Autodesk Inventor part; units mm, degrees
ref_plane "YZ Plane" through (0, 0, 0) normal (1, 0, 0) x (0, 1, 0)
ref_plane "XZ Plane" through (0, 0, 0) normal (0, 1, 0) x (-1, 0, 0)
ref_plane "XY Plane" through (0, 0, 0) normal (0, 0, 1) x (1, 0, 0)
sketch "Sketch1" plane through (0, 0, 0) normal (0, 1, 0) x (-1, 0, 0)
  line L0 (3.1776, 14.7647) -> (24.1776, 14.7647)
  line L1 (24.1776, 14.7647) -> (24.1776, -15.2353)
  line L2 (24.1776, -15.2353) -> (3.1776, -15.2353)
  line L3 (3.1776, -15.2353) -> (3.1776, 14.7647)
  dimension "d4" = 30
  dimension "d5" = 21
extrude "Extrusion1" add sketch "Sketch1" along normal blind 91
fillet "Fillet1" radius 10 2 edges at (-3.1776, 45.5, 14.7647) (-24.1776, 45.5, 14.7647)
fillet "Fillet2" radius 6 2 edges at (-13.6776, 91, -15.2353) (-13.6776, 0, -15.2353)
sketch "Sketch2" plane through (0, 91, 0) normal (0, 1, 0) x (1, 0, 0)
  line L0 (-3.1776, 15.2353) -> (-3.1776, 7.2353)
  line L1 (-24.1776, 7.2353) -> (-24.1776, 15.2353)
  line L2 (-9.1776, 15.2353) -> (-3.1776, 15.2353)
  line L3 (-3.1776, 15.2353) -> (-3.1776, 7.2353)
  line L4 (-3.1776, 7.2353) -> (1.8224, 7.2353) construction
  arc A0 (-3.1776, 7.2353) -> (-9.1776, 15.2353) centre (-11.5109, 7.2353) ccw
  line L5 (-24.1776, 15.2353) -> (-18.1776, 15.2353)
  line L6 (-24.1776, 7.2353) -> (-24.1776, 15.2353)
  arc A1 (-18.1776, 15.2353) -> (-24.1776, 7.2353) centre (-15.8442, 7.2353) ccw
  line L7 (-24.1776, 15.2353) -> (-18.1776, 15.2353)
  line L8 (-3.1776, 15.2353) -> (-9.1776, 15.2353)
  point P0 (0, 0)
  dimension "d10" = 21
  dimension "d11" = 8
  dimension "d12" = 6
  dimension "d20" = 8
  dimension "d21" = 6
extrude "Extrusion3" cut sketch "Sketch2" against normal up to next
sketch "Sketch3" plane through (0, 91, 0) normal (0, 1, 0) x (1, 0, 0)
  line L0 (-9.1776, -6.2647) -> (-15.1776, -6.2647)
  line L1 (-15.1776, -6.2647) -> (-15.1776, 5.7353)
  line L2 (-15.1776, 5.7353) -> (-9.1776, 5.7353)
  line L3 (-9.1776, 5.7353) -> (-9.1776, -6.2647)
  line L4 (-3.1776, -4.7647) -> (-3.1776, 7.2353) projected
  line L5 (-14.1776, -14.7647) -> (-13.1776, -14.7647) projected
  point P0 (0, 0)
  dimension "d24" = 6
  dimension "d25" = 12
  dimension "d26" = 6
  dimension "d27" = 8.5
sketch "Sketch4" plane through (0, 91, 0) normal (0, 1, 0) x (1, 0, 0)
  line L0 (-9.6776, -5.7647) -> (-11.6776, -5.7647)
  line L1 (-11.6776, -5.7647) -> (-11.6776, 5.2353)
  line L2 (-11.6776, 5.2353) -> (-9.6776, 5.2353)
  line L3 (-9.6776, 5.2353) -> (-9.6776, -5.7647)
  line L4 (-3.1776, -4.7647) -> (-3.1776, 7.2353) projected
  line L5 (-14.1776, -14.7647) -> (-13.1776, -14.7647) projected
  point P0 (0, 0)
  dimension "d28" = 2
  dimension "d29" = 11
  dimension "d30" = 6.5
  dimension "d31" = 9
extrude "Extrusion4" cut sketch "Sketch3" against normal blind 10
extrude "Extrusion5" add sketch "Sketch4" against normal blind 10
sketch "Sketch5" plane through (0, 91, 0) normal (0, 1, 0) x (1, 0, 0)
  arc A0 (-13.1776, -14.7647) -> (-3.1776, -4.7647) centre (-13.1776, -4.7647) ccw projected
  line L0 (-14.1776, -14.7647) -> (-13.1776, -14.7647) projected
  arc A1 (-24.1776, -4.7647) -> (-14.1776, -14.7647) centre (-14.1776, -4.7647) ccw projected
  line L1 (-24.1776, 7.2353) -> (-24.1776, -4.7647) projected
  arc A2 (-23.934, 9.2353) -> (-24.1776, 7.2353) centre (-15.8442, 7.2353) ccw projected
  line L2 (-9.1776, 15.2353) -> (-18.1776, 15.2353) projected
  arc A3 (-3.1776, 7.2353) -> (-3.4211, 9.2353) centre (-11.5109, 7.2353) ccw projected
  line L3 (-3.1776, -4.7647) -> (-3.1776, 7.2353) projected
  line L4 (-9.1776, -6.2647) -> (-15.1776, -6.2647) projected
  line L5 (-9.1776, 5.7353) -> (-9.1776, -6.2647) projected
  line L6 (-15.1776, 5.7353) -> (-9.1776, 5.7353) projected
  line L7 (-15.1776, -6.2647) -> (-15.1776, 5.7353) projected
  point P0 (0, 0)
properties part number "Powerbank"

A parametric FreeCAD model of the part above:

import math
import FreeCAD as App
import Part
import Sketcher


def edges_at(feature, points):
    """Names of the edges that pass closest to the given points."""
    edges = feature.Shape.Edges
    near = lambda p: min(range(len(edges)), key=lambda i: edges[i].distToShape(Part.Vertex(*p))[0])
    return sorted({f"Edge{near(p) + 1}" for p in points})


def add_polygon(sketch, points):
    """Adds a closed chain of lines whose ends are joined by coincident constraints."""
    first, n = sketch.GeometryCount, len(points)
    for a, b in zip(points, points[1:] + points[:1]):
        sketch.addGeometry(Part.LineSegment(App.Vector(*a, 0), App.Vector(*b, 0)), False)
    for i in range(n):
        sketch.addConstraint(Sketcher.Constraint("Coincident", first + i, 2, first + (i + 1) % n, 1))

doc = App.newDocument("Part")
body = doc.addObject("PartDesign::Body", "Body")

# Sketch on XZ plane
sketch1 = doc.addObject("Sketcher::SketchObject", "Sketch")
body.addObject(sketch1)
sketch1.AttachmentSupport = (doc.XZ_Plane, [""])
sketch1.MapMode = "FlatFace"
add_polygon(sketch1, [(-24, 15), (-3, 15), (-3, -15), (-24, -15)])  # lines 0-3
sketch1.addConstraint([
    Sketcher.Constraint("Horizontal", 0),
    Sketcher.Constraint("Vertical", 1),
    Sketcher.Constraint("Horizontal", 2),
    Sketcher.Constraint("Vertical", 3),
    Sketcher.Constraint("DistanceX", 0, 1, 0, 2, 21.0),
    Sketcher.Constraint("DistanceY", 1, 2, 1, 1, 30.0),
    Sketcher.Constraint("DistanceX", 0, 2, -1, 1, 3.1776),
    Sketcher.Constraint("DistanceY", -1, 1, 0, 2, 14.7647),
])
pad1 = doc.addObject("PartDesign::Pad", "Pad")
body.addObject(pad1)
pad1.Profile = sketch1
pad1.Length = 91
pad1.Reversed = True
doc.recompute()

fillet = doc.addObject("PartDesign::Fillet", "Fillet")
body.addObject(fillet)
fillet.Base = (pad1, edges_at(pad1, [(-3.178, 45.5, 14.765), (-24.178, 45.5, 14.765)]))
fillet.Radius = 10
doc.recompute()

fillet2 = doc.addObject("PartDesign::Fillet", "Fillet001")
body.addObject(fillet2)
fillet2.Base = (fillet, edges_at(fillet, [(-13.678, 91, -15.235), (-13.678, 0, -15.235)]))
fillet2.Radius = 6

# Sketch on XZ plane
sketch2 = doc.addObject("Sketcher::SketchObject", "Sketch001")
body.addObject(sketch2)
sketch2.AttachmentSupport = (doc.XZ_Plane, [""])
sketch2.MapMode = "FlatFace"
sketch2.AttachmentOffset = App.Placement(App.Vector(0, 0, -91), App.Rotation())
sketch2.addGeometry([
    Part.LineSegment(App.Vector(-3, -7, 0), App.Vector(-3, -15, 0)),  # 0
    Part.LineSegment(App.Vector(-3, -15, 0), App.Vector(-9, -15, 0)),  # 1
    Part.ArcOfCircle(Part.Circle(App.Vector(-12, -7, 0), App.Vector(0, 0, 1), 8), math.radians(-74), math.radians(0)),  # 2
    Part.LineSegment(App.Vector(-24, -15, 0), App.Vector(-24, -7, 0)),  # 3
    Part.ArcOfCircle(Part.Circle(App.Vector(-16, -7, 0), App.Vector(0, 0, 1), 8), math.radians(180), math.radians(254)),  # 4
    Part.LineSegment(App.Vector(-18, -15, 0), App.Vector(-24, -15, 0)),  # 5
], False)
sketch2.addConstraint([
    Sketcher.Constraint("Coincident", 0, 2, 1, 1),
    Sketcher.Constraint("Coincident", 1, 2, 2, 1),
    Sketcher.Constraint("Tangent", 2, 2, 0, 1),
    Sketcher.Constraint("Tangent", 3, 2, 4, 1),
    Sketcher.Constraint("Coincident", 4, 2, 5, 1),
    Sketcher.Constraint("Coincident", 5, 2, 3, 1),
    Sketcher.Constraint("Vertical", 0),
    Sketcher.Constraint("Horizontal", 1),
    Sketcher.Constraint("Vertical", 3),
    Sketcher.Constraint("Horizontal", 5),
    Sketcher.Constraint("Equal", 2, 4),
    Sketcher.Constraint("Horizontal", 2, 3, 4, 3),
    Sketcher.Constraint("Horizontal", 1, 2, 4, 2),
    Sketcher.Constraint("DistanceX", 1, 2, 1, 1, 6.0),
    Sketcher.Constraint("DistanceY", 0, 2, 0, 1, 8.0),
    Sketcher.Constraint("DistanceX", 3, 2, 2, 2, 21.0),
    Sketcher.Constraint("DistanceX", 2, 3, -1, 1, 11.511),
    Sketcher.Constraint("DistanceY", 2, 3, -1, 1, 7.2353),
])
pocket1 = doc.addObject("PartDesign::Pocket", "Pocket")
body.addObject(pocket1)
pocket1.Profile = sketch2
pocket1.Length = 91
pocket1.Reversed = True

# Sketch on XZ plane
sketch3 = doc.addObject("Sketcher::SketchObject", "Sketch002")
body.addObject(sketch3)
sketch3.AttachmentSupport = (doc.XZ_Plane, [""])
sketch3.MapMode = "FlatFace"
sketch3.AttachmentOffset = App.Placement(App.Vector(0, 0, -91), App.Rotation())
add_polygon(sketch3, [(-15, 6), (-9, 6), (-9, -6), (-15, -6)])  # lines 0-3
sketch3.addConstraint([
    Sketcher.Constraint("Horizontal", 0),
    Sketcher.Constraint("Vertical", 1),
    Sketcher.Constraint("Horizontal", 2),
    Sketcher.Constraint("Vertical", 3),
    Sketcher.Constraint("DistanceX", 0, 1, 0, 2, 6.0),
    Sketcher.Constraint("DistanceY", 1, 2, 1, 1, 12.0),
    Sketcher.Constraint("DistanceX", 0, 2, -1, 1, 9.1776),
    Sketcher.Constraint("DistanceY", -1, 1, 0, 2, 6.2647),
])
pocket2 = doc.addObject("PartDesign::Pocket", "Pocket001")
body.addObject(pocket2)
pocket2.Profile = sketch3
pocket2.Length = 10
pocket2.Reversed = True

# Sketch on XZ plane
sketch4 = doc.addObject("Sketcher::SketchObject", "Sketch003")
body.addObject(sketch4)
sketch4.AttachmentSupport = (doc.XZ_Plane, [""])
sketch4.MapMode = "FlatFace"
sketch4.AttachmentOffset = App.Placement(App.Vector(0, 0, -91), App.Rotation())
add_polygon(sketch4, [(-11.7, 5.8), (-9.7, 5.8), (-9.7, -5.2), (-11.7, -5.2)])  # lines 0-3
sketch4.addConstraint([
    Sketcher.Constraint("Horizontal", 0),
    Sketcher.Constraint("Vertical", 1),
    Sketcher.Constraint("Horizontal", 2),
    Sketcher.Constraint("Vertical", 3),
    Sketcher.Constraint("DistanceX", 0, 1, 0, 2, 2.0),
    Sketcher.Constraint("DistanceY", 1, 2, 1, 1, 11.0),
    Sketcher.Constraint("DistanceX", 0, 2, -1, 1, 9.6776),
    Sketcher.Constraint("DistanceY", -1, 1, 0, 2, 5.7647),
])
pad2 = doc.addObject("PartDesign::Pad", "Pad001")
body.addObject(pad2)
pad2.Profile = sketch4
pad2.Length = 10

doc.recompute()
